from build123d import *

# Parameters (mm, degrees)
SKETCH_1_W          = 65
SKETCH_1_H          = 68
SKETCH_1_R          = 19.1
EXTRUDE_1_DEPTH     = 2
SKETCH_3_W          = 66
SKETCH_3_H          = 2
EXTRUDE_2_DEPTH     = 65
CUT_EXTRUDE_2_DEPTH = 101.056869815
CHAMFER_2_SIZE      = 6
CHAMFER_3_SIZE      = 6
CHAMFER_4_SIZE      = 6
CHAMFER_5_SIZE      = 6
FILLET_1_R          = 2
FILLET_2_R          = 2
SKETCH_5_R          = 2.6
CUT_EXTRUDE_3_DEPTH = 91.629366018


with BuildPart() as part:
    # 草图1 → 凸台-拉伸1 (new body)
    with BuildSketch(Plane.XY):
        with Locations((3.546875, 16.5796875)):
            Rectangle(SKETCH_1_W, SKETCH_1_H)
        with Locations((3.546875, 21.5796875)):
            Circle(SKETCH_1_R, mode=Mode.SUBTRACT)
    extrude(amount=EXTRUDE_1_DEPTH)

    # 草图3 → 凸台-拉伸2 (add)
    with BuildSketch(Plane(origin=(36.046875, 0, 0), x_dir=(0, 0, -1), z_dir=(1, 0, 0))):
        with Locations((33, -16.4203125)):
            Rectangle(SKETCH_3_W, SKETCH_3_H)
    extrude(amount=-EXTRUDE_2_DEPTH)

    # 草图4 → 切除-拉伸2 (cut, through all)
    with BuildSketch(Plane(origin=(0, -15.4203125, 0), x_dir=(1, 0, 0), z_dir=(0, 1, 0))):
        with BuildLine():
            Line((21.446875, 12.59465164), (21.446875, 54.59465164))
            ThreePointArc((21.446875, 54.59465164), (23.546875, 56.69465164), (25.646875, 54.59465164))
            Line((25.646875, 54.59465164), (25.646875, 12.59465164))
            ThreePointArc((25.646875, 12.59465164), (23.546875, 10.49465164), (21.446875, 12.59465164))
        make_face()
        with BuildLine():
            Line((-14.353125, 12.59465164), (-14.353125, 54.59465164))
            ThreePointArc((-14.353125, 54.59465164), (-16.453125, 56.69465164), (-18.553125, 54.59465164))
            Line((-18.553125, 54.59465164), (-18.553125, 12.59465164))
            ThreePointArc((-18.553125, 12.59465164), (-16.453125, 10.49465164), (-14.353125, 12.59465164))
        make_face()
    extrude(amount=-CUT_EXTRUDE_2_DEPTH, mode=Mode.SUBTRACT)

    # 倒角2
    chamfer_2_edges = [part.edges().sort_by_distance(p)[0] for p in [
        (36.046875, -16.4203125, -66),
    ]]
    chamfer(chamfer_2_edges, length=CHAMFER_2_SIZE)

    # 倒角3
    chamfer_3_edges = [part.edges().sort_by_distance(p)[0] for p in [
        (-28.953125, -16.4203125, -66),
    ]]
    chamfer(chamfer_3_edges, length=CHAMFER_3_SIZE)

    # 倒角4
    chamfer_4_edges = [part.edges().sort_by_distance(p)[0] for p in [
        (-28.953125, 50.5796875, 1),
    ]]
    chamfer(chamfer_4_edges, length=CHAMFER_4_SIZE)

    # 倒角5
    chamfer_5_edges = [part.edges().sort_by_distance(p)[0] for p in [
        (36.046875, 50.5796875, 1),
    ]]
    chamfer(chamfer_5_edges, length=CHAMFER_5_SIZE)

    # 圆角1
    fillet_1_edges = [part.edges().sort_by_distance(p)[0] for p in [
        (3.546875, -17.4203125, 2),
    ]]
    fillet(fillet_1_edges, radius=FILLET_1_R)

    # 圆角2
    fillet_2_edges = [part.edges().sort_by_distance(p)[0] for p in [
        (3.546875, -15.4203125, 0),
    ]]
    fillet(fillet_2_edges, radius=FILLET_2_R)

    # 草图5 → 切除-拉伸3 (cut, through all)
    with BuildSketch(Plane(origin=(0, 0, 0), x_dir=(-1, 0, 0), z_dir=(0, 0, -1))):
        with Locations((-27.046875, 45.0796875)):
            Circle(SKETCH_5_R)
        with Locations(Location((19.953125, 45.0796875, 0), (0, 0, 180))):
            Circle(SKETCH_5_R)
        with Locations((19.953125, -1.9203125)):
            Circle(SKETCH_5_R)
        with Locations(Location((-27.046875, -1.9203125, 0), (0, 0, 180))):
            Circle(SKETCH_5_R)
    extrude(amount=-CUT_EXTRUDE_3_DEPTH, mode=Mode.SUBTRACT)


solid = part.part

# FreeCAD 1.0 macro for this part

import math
import FreeCAD as App
import Part
import Sketcher
from FreeCAD import Vector
Q = App.Units.Quantity


def edges_at(feature, points):
    """Names of the edges that pass closest to the given points."""
    edges = feature.Shape.Edges
    near = lambda p: min(range(len(edges)), key=lambda i: edges[i].distToShape(Part.Vertex(*p))[0])
    return sorted({f"Edge{near(p) + 1}" for p in points})

doc = App.newDocument("Part")
body = doc.addObject("PartDesign::Body", "Body")

sketch1 = doc.addObject("Sketcher::SketchObject", "Sketch")
body.addObject(sketch1)
sketch1.AttachmentSupport = (doc.XY_Plane, [""])
sketch1.MapMode = "FlatFace"
sketch1.addGeometry([
    Part.LineSegment(Vector(-28.953125, 50.579687, 0), Vector(-28.953125, -17.420313, 0)),
    Part.LineSegment(Vector(-28.953125, -17.420313, 0), Vector(36.046875, -17.420313, 0)),
    Part.LineSegment(Vector(36.046875, -17.420313, 0), Vector(36.046875, 50.579687, 0)),
    Part.LineSegment(Vector(36.046875, 50.579687, 0), Vector(-28.953125, 50.579687, 0)),
    Part.Circle(Vector(3.546875, 21.579687, 0), Vector(0, 0, 1), 19.1),
], False)
sketch1.addConstraint([
    Sketcher.Constraint("Coincident", 0, 2, 1, 1),
    Sketcher.Constraint("Coincident", 1, 2, 2, 1),
    Sketcher.Constraint("Coincident", 2, 2, 3, 1),
    Sketcher.Constraint("Coincident", 3, 2, 0, 1),
    Sketcher.Constraint("Vertical", 0),
    Sketcher.Constraint("Horizontal", 1),
    Sketcher.Constraint("Vertical", 2),
    Sketcher.Constraint("Horizontal", 3),
    Sketcher.Constraint("Diameter", 4, Q("38.2 mm")),
    Sketcher.Constraint("DistanceX", 1, 1, 1, 2, Q("65 mm")),
    Sketcher.Constraint("DistanceY", 0, 2, 0, 1, Q("68 mm")),
    Sketcher.Constraint("DistanceY", 0, 2, 4, 3, Q("39 mm")),
    Sketcher.Constraint("DistanceX", 0, 2, 4, 3, Q("32.5 mm")),
    Sketcher.Constraint("DistanceX", -1, 1, 4, 3, Q("3.546875 mm")),
    Sketcher.Constraint("DistanceY", -1, 1, 4, 3, Q("21.579687 mm")),
])
pad1 = doc.addObject("PartDesign::Pad", "Pad")
body.addObject(pad1)
pad1.Profile = sketch1
pad1.Length = 2

sketch2 = doc.addObject("Sketcher::SketchObject", "Sketch001")
body.addObject(sketch2)
sketch2.AttachmentSupport = (doc.YZ_Plane, [""])
sketch2.MapMode = "FlatFace"
sketch2.AttachmentOffset = App.Placement(Vector(0, 0, 36.046875), App.Rotation())
sketch2.addGeometry([
    Part.LineSegment(Vector(-15.420312, 0, 0), Vector(-17.420313, 0, 0)),
    Part.LineSegment(Vector(-17.420313, 0, 0), Vector(-17.420313, -66, 0)),
    Part.LineSegment(Vector(-17.420313, -66, 0), Vector(-15.420312, -66, 0)),
    Part.LineSegment(Vector(-15.420312, -66, 0), Vector(-15.420312, 0, 0)),
], False)
sketch2.addConstraint([
    Sketcher.Constraint("Coincident", 0, 2, 1, 1),
    Sketcher.Constraint("Coincident", 1, 2, 2, 1),
    Sketcher.Constraint("Coincident", 2, 2, 3, 1),
    Sketcher.Constraint("Coincident", 3, 2, 0, 1),
    Sketcher.Constraint("Horizontal", 0),
    Sketcher.Constraint("Vertical", 1),
    Sketcher.Constraint("Horizontal", 2),
    Sketcher.Constraint("Vertical", 3),
    Sketcher.Constraint("PointOnObject", 0, 2, -1),
    Sketcher.Constraint("DistanceX", 0, 2, 0, 1, Q("2 mm")),
    Sketcher.Constraint("DistanceY", 1, 2, 1, 1, Q("66 mm")),
    Sketcher.Constraint("DistanceX", 0, 2, -1, 1, Q("17.420313 mm")),
])
pad2 = doc.addObject("PartDesign::Pad", "Pad001")
body.addObject(pad2)
pad2.Profile = sketch2
pad2.Length = 65
pad2.Reversed = True

sketch3 = doc.addObject("Sketcher::SketchObject", "Sketch002")
body.addObject(sketch3)
sketch3.AttachmentSupport = (doc.XZ_Plane, [""])
sketch3.MapMode = "FlatFace"
sketch3.AttachmentOffset = App.Placement(Vector(0, 0, 15.420312), App.Rotation())
sketch3.addGeometry([
    Part.LineSegment(Vector(21.446875, -54.594652, 0), Vector(21.446875, -12.594652, 0)),
    Part.ArcOfCircle(Part.Circle(Vector(23.546875, -12.594652, 0), Vector(0, 0, 1), 2.1), math.radians(0), math.radians(180)),
    Part.LineSegment(Vector(25.646875, -12.594652, 0), Vector(25.646875, -54.594652, 0)),
    Part.ArcOfCircle(Part.Circle(Vector(23.546875, -54.594652, 0), Vector(0, 0, 1), 2.1), math.radians(180), math.radians(360)),
    Part.LineSegment(Vector(-14.353125, -12.594652, 0), Vector(-14.353125, -54.594652, 0)),
    Part.ArcOfCircle(Part.Circle(Vector(-16.453125, -54.594652, 0), Vector(0, 0, 1), 2.1), math.radians(180), math.radians(360)),
    Part.LineSegment(Vector(-18.553125, -54.594652, 0), Vector(-18.553125, -12.594652, 0)),
    Part.ArcOfCircle(Part.Circle(Vector(-16.453125, -12.594652, 0), Vector(0, 0, 1), 2.1), math.radians(0), math.radians(180)),
], False)
sketch3.addConstraint([
    Sketcher.Constraint("Tangent", 0, 2, 1, 2),
    Sketcher.Constraint("Tangent", 1, 1, 2, 1),
    Sketcher.Constraint("Tangent", 2, 2, 3, 2),
    Sketcher.Constraint("Tangent", 3, 1, 0, 1),
    Sketcher.Constraint("Tangent", 4, 2, 5, 2),
    Sketcher.Constraint("Tangent", 5, 1, 6, 1),
    Sketcher.Constraint("Tangent", 6, 2, 7, 2),
    Sketcher.Constraint("Tangent", 7, 1, 4, 1),
    Sketcher.Constraint("Vertical", 0),
    Sketcher.Constraint("Vertical", 2),
    Sketcher.Constraint("Vertical", 4),
    Sketcher.Constraint("Vertical", 6),
    Sketcher.Constraint("Equal", 3, 5),
    Sketcher.Constraint("Horizontal", 3, 3, 5, 3),
    Sketcher.Constraint("Horizontal", 1, 3, 7, 3),
    Sketcher.Constraint("Radius", 1, Q("2.1 mm")),
    Sketcher.Constraint("DistanceY", 0, 1, 0, 2, Q("42 mm")),
    Sketcher.Constraint("DistanceX", 5, 3, 3, 3, Q("40 mm")),
    Sketcher.Constraint("DistanceY", 1, 3, -1, 1, Q("12.594652 mm")),
    Sketcher.Constraint("DistanceX", -1, 1, 1, 3, Q("23.546875 mm")),
])
pocket1 = doc.addObject("PartDesign::Pocket", "Pocket")
body.addObject(pocket1)
pocket1.Profile = sketch3
pocket1.Type = "ThroughAll"
pocket1.Reversed = True
doc.recompute()

chamfer = doc.addObject("PartDesign::Chamfer", "Chamfer")
body.addObject(chamfer)
chamfer.Base = (pocket1, edges_at(pocket1, [(36.047, -16.42, -66)]))
chamfer.Size = 6
doc.recompute()

chamfer2 = doc.addObject("PartDesign::Chamfer", "Chamfer001")
body.addObject(chamfer2)
chamfer2.Base = (chamfer, edges_at(chamfer, [(-28.953, -16.42, -66)]))
chamfer2.Size = 6
doc.recompute()

chamfer3 = doc.addObject("PartDesign::Chamfer", "Chamfer002")
body.addObject(chamfer3)
chamfer3.Base = (chamfer2, edges_at(chamfer2, [(-28.953, 50.58, 1)]))
chamfer3.Size = 6
doc.recompute()

chamfer4 = doc.addObject("PartDesign::Chamfer", "Chamfer003")
body.addObject(chamfer4)
chamfer4.Base = (chamfer3, edges_at(chamfer3, [(36.047, 50.58, 1)]))
chamfer4.Size = 6
doc.recompute()

fillet = doc.addObject("PartDesign::Fillet", "Fillet")
body.addObject(fillet)
fillet.Base = (chamfer4, edges_at(chamfer4, [(3.547, -17.42, 2)]))
fillet.Radius = 2
doc.recompute()

fillet2 = doc.addObject("PartDesign::Fillet", "Fillet001")
body.addObject(fillet2)
fillet2.Base = (fillet, edges_at(fillet, [(3.547, -15.42, 0)]))
fillet2.Radius = 2

sketch4 = doc.addObject("Sketcher::SketchObject", "Sketch003")
body.addObject(sketch4)
sketch4.AttachmentSupport = (doc.XY_Plane, [""])
sketch4.MapMode = "FlatFace"
sketch4.addGeometry([
    Part.Circle(Vector(27.046875, 45.079687, 0), Vector(0, 0, 1), 2.6),
    Part.Circle(Vector(-19.953125, 45.079687, 0), Vector(0, 0, 1), 2.6),
    Part.Circle(Vector(-19.953125, -1.920313, 0), Vector(0, 0, 1), 2.6),
    Part.Circle(Vector(27.046875, -1.920313, 0), Vector(0, 0, 1), 2.6),
], False)
sketch4.addConstraint([
    Sketcher.Constraint("Equal", 0, 1),
    Sketcher.Constraint("Equal", 1, 2),
    Sketcher.Constraint("Equal", 2, 3),
    Sketcher.Constraint("Horizontal", 0, 3, 1, 3),
    Sketcher.Constraint("Horizontal", 2, 3, 3, 3),
    Sketcher.Constraint("Vertical", 1, 3, 2, 3),
    Sketcher.Constraint("Vertical", 0, 3, 3, 3),
    Sketcher.Constraint("Diameter", 0, Q("5.2 mm")),
    Sketcher.Constraint("DistanceX", 1, 3, 0, 3, Q("47 mm")),
    Sketcher.Constraint("DistanceY", 2, 3, 1, 3, Q("47 mm")),
    Sketcher.Constraint("DistanceX", -1, 1, 0, 3, Q("27.046875 mm")),
    Sketcher.Constraint("DistanceY", -1, 1, 0, 3, Q("45.079687 mm")),
])
pocket2 = doc.addObject("PartDesign::Pocket", "Pocket001")
body.addObject(pocket2)
pocket2.Profile = sketch4
pocket2.Type = "ThroughAll"
pocket2.Reversed = True

doc.recompute()
